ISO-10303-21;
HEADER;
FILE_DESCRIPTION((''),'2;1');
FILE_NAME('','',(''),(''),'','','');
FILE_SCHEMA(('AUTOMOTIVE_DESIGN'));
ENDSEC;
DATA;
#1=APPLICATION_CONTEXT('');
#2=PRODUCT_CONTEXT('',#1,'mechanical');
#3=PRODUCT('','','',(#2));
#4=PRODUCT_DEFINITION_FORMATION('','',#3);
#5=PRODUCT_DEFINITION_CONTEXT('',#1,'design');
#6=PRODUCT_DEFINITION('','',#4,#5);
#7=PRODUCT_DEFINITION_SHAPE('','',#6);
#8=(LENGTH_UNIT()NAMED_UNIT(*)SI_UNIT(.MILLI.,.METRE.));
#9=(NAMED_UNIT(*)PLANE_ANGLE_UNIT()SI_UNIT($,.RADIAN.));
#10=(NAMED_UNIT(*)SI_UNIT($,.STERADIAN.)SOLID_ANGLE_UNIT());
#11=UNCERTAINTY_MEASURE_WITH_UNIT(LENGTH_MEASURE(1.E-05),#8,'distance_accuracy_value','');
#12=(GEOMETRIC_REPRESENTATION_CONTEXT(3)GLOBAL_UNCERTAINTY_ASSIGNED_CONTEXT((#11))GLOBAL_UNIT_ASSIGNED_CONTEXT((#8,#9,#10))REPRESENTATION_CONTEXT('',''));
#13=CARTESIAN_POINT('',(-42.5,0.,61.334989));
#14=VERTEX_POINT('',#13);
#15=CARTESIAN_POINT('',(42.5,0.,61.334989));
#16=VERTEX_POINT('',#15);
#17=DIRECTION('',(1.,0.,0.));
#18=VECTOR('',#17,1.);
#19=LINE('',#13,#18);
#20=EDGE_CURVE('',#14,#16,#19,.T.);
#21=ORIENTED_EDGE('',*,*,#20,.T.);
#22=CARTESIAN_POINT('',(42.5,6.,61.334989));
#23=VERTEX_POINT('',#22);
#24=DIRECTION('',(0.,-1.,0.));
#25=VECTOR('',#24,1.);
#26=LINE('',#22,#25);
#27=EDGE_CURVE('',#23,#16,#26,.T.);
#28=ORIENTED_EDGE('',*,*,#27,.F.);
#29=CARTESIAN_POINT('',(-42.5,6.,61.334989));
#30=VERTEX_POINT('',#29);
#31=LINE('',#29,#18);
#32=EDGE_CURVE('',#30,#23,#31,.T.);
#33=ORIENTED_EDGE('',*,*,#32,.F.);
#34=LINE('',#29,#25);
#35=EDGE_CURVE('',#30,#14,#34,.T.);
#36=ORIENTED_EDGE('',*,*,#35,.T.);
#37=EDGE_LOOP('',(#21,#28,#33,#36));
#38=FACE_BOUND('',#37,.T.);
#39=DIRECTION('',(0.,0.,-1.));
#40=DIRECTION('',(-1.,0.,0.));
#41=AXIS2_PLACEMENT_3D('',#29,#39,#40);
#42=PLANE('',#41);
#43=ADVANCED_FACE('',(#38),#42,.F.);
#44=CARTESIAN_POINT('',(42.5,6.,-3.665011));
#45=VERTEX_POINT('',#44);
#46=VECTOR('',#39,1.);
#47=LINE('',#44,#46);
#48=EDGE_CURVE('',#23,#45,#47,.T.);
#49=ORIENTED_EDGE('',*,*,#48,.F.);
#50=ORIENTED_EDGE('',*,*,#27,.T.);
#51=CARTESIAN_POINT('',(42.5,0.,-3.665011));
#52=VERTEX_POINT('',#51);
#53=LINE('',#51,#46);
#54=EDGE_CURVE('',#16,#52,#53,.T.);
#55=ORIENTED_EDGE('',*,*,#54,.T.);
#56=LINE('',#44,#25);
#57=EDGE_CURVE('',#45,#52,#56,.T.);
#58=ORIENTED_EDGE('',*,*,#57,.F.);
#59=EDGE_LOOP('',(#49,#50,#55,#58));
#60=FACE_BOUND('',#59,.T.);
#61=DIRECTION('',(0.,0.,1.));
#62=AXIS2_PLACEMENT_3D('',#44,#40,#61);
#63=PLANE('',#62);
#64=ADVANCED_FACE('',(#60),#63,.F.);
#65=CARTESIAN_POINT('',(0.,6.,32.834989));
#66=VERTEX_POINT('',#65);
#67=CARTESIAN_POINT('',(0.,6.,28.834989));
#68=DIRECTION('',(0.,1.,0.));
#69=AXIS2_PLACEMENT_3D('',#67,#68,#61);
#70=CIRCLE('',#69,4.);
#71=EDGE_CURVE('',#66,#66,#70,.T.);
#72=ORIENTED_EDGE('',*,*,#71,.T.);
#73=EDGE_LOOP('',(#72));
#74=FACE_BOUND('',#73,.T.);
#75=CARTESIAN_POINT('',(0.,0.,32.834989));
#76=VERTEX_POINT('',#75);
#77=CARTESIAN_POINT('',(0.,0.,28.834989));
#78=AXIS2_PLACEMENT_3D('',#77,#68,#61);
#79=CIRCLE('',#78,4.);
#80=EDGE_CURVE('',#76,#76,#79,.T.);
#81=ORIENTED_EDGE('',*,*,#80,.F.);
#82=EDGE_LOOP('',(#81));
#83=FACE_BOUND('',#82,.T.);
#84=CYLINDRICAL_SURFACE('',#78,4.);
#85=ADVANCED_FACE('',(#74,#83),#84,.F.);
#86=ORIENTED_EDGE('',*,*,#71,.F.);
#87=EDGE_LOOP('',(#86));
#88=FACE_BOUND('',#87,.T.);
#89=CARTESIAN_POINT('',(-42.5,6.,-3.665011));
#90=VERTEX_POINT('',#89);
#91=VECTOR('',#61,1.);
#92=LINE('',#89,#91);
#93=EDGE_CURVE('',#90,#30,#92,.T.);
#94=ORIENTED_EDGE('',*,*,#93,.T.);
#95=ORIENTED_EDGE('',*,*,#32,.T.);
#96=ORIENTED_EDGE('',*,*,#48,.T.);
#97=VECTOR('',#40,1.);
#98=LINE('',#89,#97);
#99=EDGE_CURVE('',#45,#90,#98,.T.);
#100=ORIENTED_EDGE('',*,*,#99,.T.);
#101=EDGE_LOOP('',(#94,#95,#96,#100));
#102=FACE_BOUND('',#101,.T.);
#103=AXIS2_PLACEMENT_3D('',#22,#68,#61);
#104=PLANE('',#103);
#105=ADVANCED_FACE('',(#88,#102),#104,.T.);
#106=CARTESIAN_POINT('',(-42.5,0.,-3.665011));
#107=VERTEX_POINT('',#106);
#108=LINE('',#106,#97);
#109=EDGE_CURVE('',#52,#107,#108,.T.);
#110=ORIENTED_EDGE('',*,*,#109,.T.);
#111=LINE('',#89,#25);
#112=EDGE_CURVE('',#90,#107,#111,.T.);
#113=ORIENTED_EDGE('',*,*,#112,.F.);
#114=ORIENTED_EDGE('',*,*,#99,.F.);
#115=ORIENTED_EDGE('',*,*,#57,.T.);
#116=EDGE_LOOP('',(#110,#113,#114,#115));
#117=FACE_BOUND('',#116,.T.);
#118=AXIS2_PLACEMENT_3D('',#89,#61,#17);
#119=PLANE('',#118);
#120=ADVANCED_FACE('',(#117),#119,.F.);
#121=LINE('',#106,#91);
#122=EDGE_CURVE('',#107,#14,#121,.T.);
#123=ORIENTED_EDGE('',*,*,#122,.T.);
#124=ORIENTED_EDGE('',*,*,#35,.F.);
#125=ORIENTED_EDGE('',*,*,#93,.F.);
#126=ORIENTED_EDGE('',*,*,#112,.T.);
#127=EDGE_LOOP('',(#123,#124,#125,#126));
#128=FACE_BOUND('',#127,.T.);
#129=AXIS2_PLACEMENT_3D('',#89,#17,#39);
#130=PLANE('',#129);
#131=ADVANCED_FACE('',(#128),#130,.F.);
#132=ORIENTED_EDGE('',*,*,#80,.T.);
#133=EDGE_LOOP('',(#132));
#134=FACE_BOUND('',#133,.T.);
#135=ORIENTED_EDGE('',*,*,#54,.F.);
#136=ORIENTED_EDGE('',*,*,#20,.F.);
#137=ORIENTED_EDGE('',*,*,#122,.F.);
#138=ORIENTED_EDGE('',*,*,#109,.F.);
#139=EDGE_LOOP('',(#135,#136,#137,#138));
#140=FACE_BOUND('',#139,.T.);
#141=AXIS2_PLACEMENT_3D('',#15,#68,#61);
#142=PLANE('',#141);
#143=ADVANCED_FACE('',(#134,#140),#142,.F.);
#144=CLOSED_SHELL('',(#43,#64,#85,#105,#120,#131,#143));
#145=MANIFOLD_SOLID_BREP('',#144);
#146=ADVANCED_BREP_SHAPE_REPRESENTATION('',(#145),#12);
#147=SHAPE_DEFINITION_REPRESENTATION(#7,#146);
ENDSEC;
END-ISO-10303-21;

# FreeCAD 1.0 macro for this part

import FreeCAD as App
import Part
import Sketcher

V = App.Vector
Q = App.Units.Quantity

doc = App.newDocument("Part")
body = doc.addObject("PartDesign::Body", "Body")

# Sketch on XZ plane
sketch1 = doc.addObject("Sketcher::SketchObject", "Sketch")
body.addObject(sketch1)
sketch1.AttachmentSupport = (doc.XZ_Plane, [""])
sketch1.MapMode = "FlatFace"
sketch1.addGeometry([
    Part.LineSegment(V(-42, -4, 0), V(-42, 61, 0)),
    Part.LineSegment(V(-42, 61, 0), V(42, 61, 0)),
    Part.LineSegment(V(42, 61, 0), V(42, -4, 0)),
    Part.LineSegment(V(42, -4, 0), V(-42, -4, 0)),
], False)
sketch1.addConstraint([
    Sketcher.Constraint("Coincident", 0, 2, 1, 1),
    Sketcher.Constraint("Coincident", 1, 2, 2, 1),
    Sketcher.Constraint("Coincident", 2, 2, 3, 1),
    Sketcher.Constraint("Coincident", 3, 2, 0, 1),
    Sketcher.Constraint("Vertical", 0),
    Sketcher.Constraint("Horizontal", 1),
    Sketcher.Constraint("Vertical", 2),
    Sketcher.Constraint("Horizontal", 3),
    Sketcher.Constraint("DistanceX", 1, 1, 1, 2, Q("85 mm")),
    Sketcher.Constraint("DistanceY", 0, 1, 0, 2, Q("65 mm")),
    Sketcher.Constraint("DistanceX", 0, 2, -1, 1, Q("42.5 mm")),
    Sketcher.Constraint("DistanceY", -1, 1, 0, 2, Q("61.334989 mm")),
])
pad1 = doc.addObject("PartDesign::Pad", "Pad")
body.addObject(pad1)
pad1.Profile = sketch1
pad1.Length = 6
pad1.Reversed = True

# Sketch on XZ plane
sketch2 = doc.addObject("Sketcher::SketchObject", "Sketch001")
body.addObject(sketch2)
sketch2.AttachmentSupport = (doc.XZ_Plane, [""])
sketch2.MapMode = "FlatFace"
sketch2.AttachmentOffset = App.Placement(V(0, 0, -6), App.Rotation())
sketch2.addGeometry(Part.Circle(V(0, 28.8, 0), V(0, 0, 1), 4), False)
sketch2.addConstraint([
    Sketcher.Constraint("PointOnObject", 0, 3, -2),
    Sketcher.Constraint("Diameter", 0, Q("8 mm")),
    Sketcher.Constraint("DistanceY", -1, 1, 0, 3, Q("28.834989 mm")),
])
pocket1 = doc.addObject("PartDesign::Pocket", "Pocket")
body.addObject(pocket1)
pocket1.Profile = sketch2
pocket1.Type = "ThroughAll"
pocket1.Reversed = True

doc.recompute()
